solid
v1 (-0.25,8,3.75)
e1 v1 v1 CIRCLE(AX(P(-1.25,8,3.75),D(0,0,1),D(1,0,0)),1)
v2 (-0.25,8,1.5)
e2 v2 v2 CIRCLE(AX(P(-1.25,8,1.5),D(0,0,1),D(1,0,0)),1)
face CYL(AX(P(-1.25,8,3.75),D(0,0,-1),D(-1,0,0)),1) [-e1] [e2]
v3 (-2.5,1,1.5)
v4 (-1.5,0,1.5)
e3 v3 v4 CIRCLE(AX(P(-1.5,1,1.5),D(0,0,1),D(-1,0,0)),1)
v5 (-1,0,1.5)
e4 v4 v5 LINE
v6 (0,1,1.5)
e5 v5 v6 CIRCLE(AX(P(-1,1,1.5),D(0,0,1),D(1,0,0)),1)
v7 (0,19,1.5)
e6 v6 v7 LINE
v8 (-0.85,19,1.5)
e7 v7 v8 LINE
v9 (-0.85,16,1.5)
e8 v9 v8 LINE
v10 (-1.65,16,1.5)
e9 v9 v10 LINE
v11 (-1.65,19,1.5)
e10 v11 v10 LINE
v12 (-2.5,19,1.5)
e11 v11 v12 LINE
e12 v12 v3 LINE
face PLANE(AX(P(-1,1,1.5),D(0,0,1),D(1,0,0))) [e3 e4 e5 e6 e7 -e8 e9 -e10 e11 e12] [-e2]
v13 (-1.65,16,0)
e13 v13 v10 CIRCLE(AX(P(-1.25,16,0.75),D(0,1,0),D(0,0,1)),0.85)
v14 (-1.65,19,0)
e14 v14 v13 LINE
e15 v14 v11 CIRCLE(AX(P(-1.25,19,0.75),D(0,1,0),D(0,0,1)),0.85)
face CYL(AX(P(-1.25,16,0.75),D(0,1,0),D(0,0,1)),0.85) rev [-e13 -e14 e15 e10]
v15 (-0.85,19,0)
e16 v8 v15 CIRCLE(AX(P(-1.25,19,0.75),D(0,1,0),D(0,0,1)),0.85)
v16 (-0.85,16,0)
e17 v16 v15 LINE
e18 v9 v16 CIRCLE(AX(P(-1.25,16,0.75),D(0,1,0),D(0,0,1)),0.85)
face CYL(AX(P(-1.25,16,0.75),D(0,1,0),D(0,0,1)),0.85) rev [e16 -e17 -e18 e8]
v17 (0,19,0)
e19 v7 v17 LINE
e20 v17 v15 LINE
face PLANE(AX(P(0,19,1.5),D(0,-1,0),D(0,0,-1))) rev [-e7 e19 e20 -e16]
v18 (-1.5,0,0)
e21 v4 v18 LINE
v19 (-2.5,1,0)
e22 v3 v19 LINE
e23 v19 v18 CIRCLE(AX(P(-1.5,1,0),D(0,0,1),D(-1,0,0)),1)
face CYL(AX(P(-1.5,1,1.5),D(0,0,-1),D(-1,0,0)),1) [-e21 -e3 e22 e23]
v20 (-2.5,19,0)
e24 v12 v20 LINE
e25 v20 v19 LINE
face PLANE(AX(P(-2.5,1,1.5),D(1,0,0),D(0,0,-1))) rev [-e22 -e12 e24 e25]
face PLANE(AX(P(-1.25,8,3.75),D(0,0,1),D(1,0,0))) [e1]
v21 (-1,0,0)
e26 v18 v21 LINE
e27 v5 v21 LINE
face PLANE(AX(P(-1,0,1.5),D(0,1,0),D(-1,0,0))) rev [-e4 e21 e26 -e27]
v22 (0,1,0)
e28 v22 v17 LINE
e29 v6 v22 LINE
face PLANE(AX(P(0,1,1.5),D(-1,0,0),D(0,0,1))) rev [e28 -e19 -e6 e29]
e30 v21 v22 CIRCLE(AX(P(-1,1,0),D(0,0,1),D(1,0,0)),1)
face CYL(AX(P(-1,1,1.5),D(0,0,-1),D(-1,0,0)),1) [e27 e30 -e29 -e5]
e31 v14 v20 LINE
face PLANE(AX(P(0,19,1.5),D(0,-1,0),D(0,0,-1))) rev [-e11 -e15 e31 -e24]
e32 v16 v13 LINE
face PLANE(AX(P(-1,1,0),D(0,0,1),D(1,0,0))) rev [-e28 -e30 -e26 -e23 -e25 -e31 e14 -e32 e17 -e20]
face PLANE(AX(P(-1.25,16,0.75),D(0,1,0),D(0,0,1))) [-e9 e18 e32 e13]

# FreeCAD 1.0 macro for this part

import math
import FreeCAD as App
import Part
import Sketcher
from FreeCAD import Vector
Q = App.Units.Quantity

doc = App.newDocument("Part")
body = doc.addObject("PartDesign::Body", "Body")

# Sketch on XY plane
sketch1 = body.newObject("Sketcher::SketchObject", "Sketch")
sketch1.AttachmentSupport = (doc.getObject("XY_Plane"), [""])
sketch1.MapMode = "FlatFace"
sketch1.addGeometry([
    Part.LineSegment(Vector(-1.5, 0, 0), Vector(-1, 0, 0)),  # 0
    Part.ArcOfCircle(Part.Circle(Vector(-1, 1, 0), Vector(0, 0, 1), 1), math.radians(-90), math.radians(0)),  # 1
    Part.LineSegment(Vector(0, 1, 0), Vector(0, 19, 0)),  # 2
    Part.LineSegment(Vector(0, 19, 0), Vector(-2.5, 19, 0)),  # 3
    Part.LineSegment(Vector(-2.5, 19, 0), Vector(-2.5, 1, 0)),  # 4
    Part.ArcOfCircle(Part.Circle(Vector(-1.5, 1, 0), Vector(0, 0, 1), 1), math.radians(-180), math.radians(-90)),  # 5
], False)
sketch1.addConstraint([
    Sketcher.Constraint("Tangent", 0, 2, 1, 1),
    Sketcher.Constraint("Tangent", 1, 2, 2, 1),
    Sketcher.Constraint("Coincident", 2, 2, 3, 1),
    Sketcher.Constraint("Coincident", 3, 2, 4, 1),
    Sketcher.Constraint("Tangent", 4, 2, 5, 1),
    Sketcher.Constraint("Tangent", 5, 2, 0, 1),
    Sketcher.Constraint("Horizontal", 0),
    Sketcher.Constraint("Vertical", 2),
    Sketcher.Constraint("Horizontal", 3),
    Sketcher.Constraint("Vertical", 4),
    Sketcher.Constraint("Equal", 1, 5),
    Sketcher.Constraint("PointOnObject", 0, 2, -1),
    Sketcher.Constraint("PointOnObject", 1, 2, -2),
    Sketcher.Constraint("Radius", 1, Q("1 mm")),
    Sketcher.Constraint("DistanceY", 2, 1, 2, 2, Q("18 mm")),
    Sketcher.Constraint("DistanceX", 0, 1, 0, 2, Q("0.5 mm")),
])
pad1 = body.newObject("PartDesign::Pad", "Pad")
pad1.Profile = sketch1
pad1.Length = 1.5

# Sketch on XY plane
sketch2 = body.newObject("Sketcher::SketchObject", "Sketch001")
sketch2.AttachmentSupport = (doc.getObject("XY_Plane"), [""])
sketch2.MapMode = "FlatFace"
sketch2.AttachmentOffset = App.Placement(Vector(0, 0, 1.5), App.Rotation())
sketch2.addGeometry(Part.Circle(Vector(-1.2, 8, 0), Vector(0, 0, 1), 1), False)
sketch2.addConstraint([
    Sketcher.Constraint("Diameter", 0, Q("2 mm")),
    Sketcher.Constraint("DistanceY", -1, 1, 0, 3, Q("8 mm")),
    Sketcher.Constraint("DistanceX", 0, 3, -1, 1, Q("1.25 mm")),
])
pad2 = body.newObject("PartDesign::Pad", "Pad001")
pad2.Profile = sketch2
pad2.Length = 2.25

# Sketch on XZ plane
sketch3 = body.newObject("Sketcher::SketchObject", "Sketch002")
sketch3.AttachmentSupport = (doc.getObject("XZ_Plane"), [""])
sketch3.MapMode = "FlatFace"
sketch3.AttachmentOffset = App.Placement(Vector(0, 0, -19), App.Rotation())
sketch3.addGeometry(Part.Circle(Vector(-1.2, 0.8, 0), Vector(0, 0, 1), 0.8), False)
sketch3.addConstraint([
    Sketcher.Constraint("Diameter", 0, Q("1.7 mm")),
    Sketcher.Constraint("DistanceX", 0, 3, -1, 1, Q("1.25 mm")),
    Sketcher.Constraint("DistanceY", -1, 1, 0, 3, Q("0.75 mm")),
])
pocket1 = body.newObject("PartDesign::Pocket", "Pocket")
pocket1.Profile = sketch3
pocket1.Length = 3
pocket1.Reversed = True

doc.recompute()
